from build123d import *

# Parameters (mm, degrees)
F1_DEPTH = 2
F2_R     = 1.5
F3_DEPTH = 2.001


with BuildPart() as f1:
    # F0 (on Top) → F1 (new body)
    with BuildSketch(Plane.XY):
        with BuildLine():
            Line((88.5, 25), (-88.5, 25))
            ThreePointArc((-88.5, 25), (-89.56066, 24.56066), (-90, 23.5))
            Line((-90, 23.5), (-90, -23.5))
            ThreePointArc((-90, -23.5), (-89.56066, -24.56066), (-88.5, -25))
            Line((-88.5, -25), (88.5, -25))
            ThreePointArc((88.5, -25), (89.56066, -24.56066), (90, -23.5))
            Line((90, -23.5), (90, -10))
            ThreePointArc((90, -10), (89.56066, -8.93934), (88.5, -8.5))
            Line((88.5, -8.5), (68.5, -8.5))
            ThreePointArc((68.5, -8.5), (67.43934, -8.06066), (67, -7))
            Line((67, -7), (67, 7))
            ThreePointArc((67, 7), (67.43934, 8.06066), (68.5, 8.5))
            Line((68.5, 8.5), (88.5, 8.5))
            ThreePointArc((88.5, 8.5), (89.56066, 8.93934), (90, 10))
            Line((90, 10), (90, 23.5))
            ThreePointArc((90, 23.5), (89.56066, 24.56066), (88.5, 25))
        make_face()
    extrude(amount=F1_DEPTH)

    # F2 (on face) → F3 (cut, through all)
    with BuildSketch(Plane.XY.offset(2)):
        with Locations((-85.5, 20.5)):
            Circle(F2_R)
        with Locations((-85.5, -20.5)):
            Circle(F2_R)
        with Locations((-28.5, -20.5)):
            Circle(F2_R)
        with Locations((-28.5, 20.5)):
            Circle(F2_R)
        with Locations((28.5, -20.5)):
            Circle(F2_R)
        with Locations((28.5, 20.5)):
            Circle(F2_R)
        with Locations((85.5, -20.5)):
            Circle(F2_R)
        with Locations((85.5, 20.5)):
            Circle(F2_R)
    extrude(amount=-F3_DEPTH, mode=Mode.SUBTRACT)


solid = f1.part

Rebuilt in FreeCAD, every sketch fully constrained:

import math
import FreeCAD as App
import Part
import Sketcher
from FreeCAD import Vector

doc = App.newDocument("Part")
body = doc.addObject("PartDesign::Body", "Body")

sketch1 = doc.addObject("Sketcher::SketchObject", "Sketch")
body.addObject(sketch1)
sketch1.AttachmentSupport = (doc.XY_Plane, [""])
sketch1.MapMode = "FlatFace"
sketch1.addGeometry(Part.LineSegment(Vector(88.5, 25, 0), Vector(-88.5, 25, 0)), False)
sketch1.addGeometry(Part.ArcOfCircle(Part.Circle(Vector(-88.499999, 23.499999, 0), Vector(0, 0, 1), 1.500001), math.radians(90.000022), math.radians(179.999978)), False)
sketch1.addGeometry(Part.LineSegment(Vector(-90, 23.5, 0), Vector(-90, -23.5, 0)), False)
sketch1.addGeometry(Part.ArcOfCircle(Part.Circle(Vector(-88.499999, -23.499999, 0), Vector(0, 0, 1), 1.500001), math.radians(-179.999978), math.radians(-90.000022)), False)
sketch1.addGeometry(Part.LineSegment(Vector(-88.5, -25, 0), Vector(88.5, -25, 0)), False)
sketch1.addGeometry(Part.ArcOfCircle(Part.Circle(Vector(88.499999, -23.499999, 0), Vector(0, 0, 1), 1.500001), math.radians(-89.999978), math.radians(-0.000022)), False)
sketch1.addGeometry(Part.LineSegment(Vector(90, -23.5, 0), Vector(90, -10, 0)), False)
sketch1.addGeometry(Part.ArcOfCircle(Part.Circle(Vector(88.499999, -10.000001, 0), Vector(0, 0, 1), 1.500001), math.radians(0.000022), math.radians(89.999978)), False)
sketch1.addGeometry(Part.LineSegment(Vector(88.5, -8.5, 0), Vector(68.5, -8.5, 0)), False)
sketch1.addGeometry(Part.ArcOfCircle(Part.Circle(Vector(68.500001, -6.999999, 0), Vector(0, 0, 1), 1.500001), math.radians(-179.999978), math.radians(-90.000022)), False)
sketch1.addGeometry(Part.LineSegment(Vector(67, -7, 0), Vector(67, 7, 0)), False)
sketch1.addGeometry(Part.ArcOfCircle(Part.Circle(Vector(68.500001, 6.999999, 0), Vector(0, 0, 1), 1.500001), math.radians(90.000022), math.radians(179.999978)), False)
sketch1.addGeometry(Part.LineSegment(Vector(68.5, 8.5, 0), Vector(88.5, 8.5, 0)), False)
sketch1.addGeometry(Part.ArcOfCircle(Part.Circle(Vector(88.499999, 10.000001, 0), Vector(0, 0, 1), 1.500001), math.radians(-89.999978), math.radians(-0.000022)), False)
sketch1.addGeometry(Part.LineSegment(Vector(90, 10, 0), Vector(90, 23.5, 0)), False)
sketch1.addGeometry(Part.ArcOfCircle(Part.Circle(Vector(88.499999, 23.499999, 0), Vector(0, 0, 1), 1.500001), math.radians(0.000022), math.radians(89.999978)), False)
sketch1.addConstraint(Sketcher.Constraint("Tangent", 0, 2, 1, 1))
sketch1.addConstraint(Sketcher.Constraint("Tangent", 1, 2, 2, 1))
sketch1.addConstraint(Sketcher.Constraint("Tangent", 2, 2, 3, 1))
sketch1.addConstraint(Sketcher.Constraint("Tangent", 3, 2, 4, 1))
sketch1.addConstraint(Sketcher.Constraint("Tangent", 4, 2, 5, 1))
sketch1.addConstraint(Sketcher.Constraint("Tangent", 5, 2, 6, 1))
sketch1.addConstraint(Sketcher.Constraint("Tangent", 6, 2, 7, 1))
sketch1.addConstraint(Sketcher.Constraint("Tangent", 7, 2, 8, 1))
sketch1.addConstraint(Sketcher.Constraint("Tangent", 8, 2, 9, 2))
sketch1.addConstraint(Sketcher.Constraint("Tangent", 9, 1, 10, 1))
sketch1.addConstraint(Sketcher.Constraint("Tangent", 10, 2, 11, 2))
sketch1.addConstraint(Sketcher.Constraint("Tangent", 11, 1, 12, 1))
sketch1.addConstraint(Sketcher.Constraint("Tangent", 12, 2, 13, 1))
sketch1.addConstraint(Sketcher.Constraint("Tangent", 13, 2, 14, 1))
sketch1.addConstraint(Sketcher.Constraint("Tangent", 14, 2, 15, 1))
sketch1.addConstraint(Sketcher.Constraint("Tangent", 15, 2, 0, 1))
sketch1.addConstraint(Sketcher.Constraint("Horizontal", 0))
sketch1.addConstraint(Sketcher.Constraint("Vertical", 2))
sketch1.addConstraint(Sketcher.Constraint("Horizontal", 4))
sketch1.addConstraint(Sketcher.Constraint("Vertical", 6))
sketch1.addConstraint(Sketcher.Constraint("Horizontal", 8))
sketch1.addConstraint(Sketcher.Constraint("Vertical", 10))
sketch1.addConstraint(Sketcher.Constraint("Horizontal", 12))
sketch1.addConstraint(Sketcher.Constraint("Vertical", 14))
sketch1.addConstraint(Sketcher.Constraint("Equal", 1, 3))
sketch1.addConstraint(Sketcher.Constraint("Equal", 3, 5))
sketch1.addConstraint(Sketcher.Constraint("Equal", 5, 7))
sketch1.addConstraint(Sketcher.Constraint("Equal", 7, 9))
sketch1.addConstraint(Sketcher.Constraint("Equal", 9, 11))
sketch1.addConstraint(Sketcher.Constraint("Equal", 11, 13))
sketch1.addConstraint(Sketcher.Constraint("Equal", 13, 15))
sketch1.addConstraint(Sketcher.Constraint("Symmetric", 1, 3, 5, 3, -1, 1))
sketch1.addConstraint(Sketcher.Constraint("Symmetric", 7, 3, 13, 3, -1))
sketch1.addConstraint(Sketcher.Constraint("Radius", 1, 1.500001))
sketch1.addConstraint(Sketcher.Constraint("DistanceX", 0, 2, 0, 1, 177.0))
sketch1.addConstraint(Sketcher.Constraint("DistanceX", 8, 2, 8, 1, 20.0))
sketch1.addConstraint(Sketcher.Constraint("DistanceY", 2, 2, 2, 1, 47.0))
sketch1.addConstraint(Sketcher.Constraint("DistanceY", 10, 1, 10, 2, 14.0))
pad1 = doc.addObject("PartDesign::Pad", "Pad")
body.addObject(pad1)
pad1.Profile = sketch1
pad1.Length = 2

sketch2 = doc.addObject("Sketcher::SketchObject", "Sketch001")
body.addObject(sketch2)
sketch2.AttachmentSupport = (doc.XY_Plane, [""])
sketch2.MapMode = "FlatFace"
sketch2.AttachmentOffset = App.Placement(Vector(0, 0, 2), App.Rotation())
sketch2.addGeometry(Part.Circle(Vector(-85.5, 20.5, 0), Vector(0, 0, 1), 1.5), False)
sketch2.addGeometry(Part.Circle(Vector(-85.5, -20.5, 0), Vector(0, 0, 1), 1.5), False)
sketch2.addGeometry(Part.Circle(Vector(-28.5, -20.5, 0), Vector(0, 0, 1), 1.5), False)
sketch2.addGeometry(Part.Circle(Vector(-28.5, 20.5, 0), Vector(0, 0, 1), 1.5), False)
sketch2.addGeometry(Part.Circle(Vector(28.5, -20.5, 0), Vector(0, 0, 1), 1.5), False)
sketch2.addGeometry(Part.Circle(Vector(28.5, 20.5, 0), Vector(0, 0, 1), 1.5), False)
sketch2.addGeometry(Part.Circle(Vector(85.5, -20.5, 0), Vector(0, 0, 1), 1.5), False)
sketch2.addGeometry(Part.Circle(Vector(85.5, 20.5, 0), Vector(0, 0, 1), 1.5), False)
sketch2.addConstraint(Sketcher.Constraint("Equal", 0, 1))
sketch2.addConstraint(Sketcher.Constraint("Equal", 1, 2))
sketch2.addConstraint(Sketcher.Constraint("Equal", 2, 3))
sketch2.addConstraint(Sketcher.Constraint("Equal", 3, 4))
sketch2.addConstraint(Sketcher.Constraint("Equal", 4, 5))
sketch2.addConstraint(Sketcher.Constraint("Equal", 5, 6))
sketch2.addConstraint(Sketcher.Constraint("Equal", 6, 7))
sketch2.addConstraint(Sketcher.Constraint("Symmetric", 3, 3, 4, 3, -1, 1))
sketch2.addConstraint(Sketcher.Constraint("Symmetric", 2, 3, 5, 3, -1, 1))
sketch2.addConstraint(Sketcher.Constraint("Symmetric", 0, 3, 6, 3, -1, 1))
sketch2.addConstraint(Sketcher.Constraint("Symmetric", 1, 3, 7, 3, -1, 1))
sketch2.addConstraint(Sketcher.Constraint("Symmetric", 2, 3, 4, 3, -2))
sketch2.addConstraint(Sketcher.Constraint("Symmetric", 1, 3, 6, 3, -2))
sketch2.addConstraint(Sketcher.Constraint("Horizontal", 1, 3, 2, 3))
sketch2.addConstraint(Sketcher.Constraint("Diameter", 0, 3.0))
sketch2.addConstraint(Sketcher.Constraint("DistanceY", 1, 3, 0, 3, 41.0))
sketch2.addConstraint(Sketcher.Constraint("DistanceX", 1, 3, 2, 3, 57.0))
sketch2.addConstraint(Sketcher.Constraint("DistanceX", 2, 3, 4, 3, 57.0))
pocket1 = doc.addObject("PartDesign::Pocket", "Pocket")
body.addObject(pocket1)
pocket1.Profile = sketch2
pocket1.Type = "ThroughAll"

doc.recompute()
